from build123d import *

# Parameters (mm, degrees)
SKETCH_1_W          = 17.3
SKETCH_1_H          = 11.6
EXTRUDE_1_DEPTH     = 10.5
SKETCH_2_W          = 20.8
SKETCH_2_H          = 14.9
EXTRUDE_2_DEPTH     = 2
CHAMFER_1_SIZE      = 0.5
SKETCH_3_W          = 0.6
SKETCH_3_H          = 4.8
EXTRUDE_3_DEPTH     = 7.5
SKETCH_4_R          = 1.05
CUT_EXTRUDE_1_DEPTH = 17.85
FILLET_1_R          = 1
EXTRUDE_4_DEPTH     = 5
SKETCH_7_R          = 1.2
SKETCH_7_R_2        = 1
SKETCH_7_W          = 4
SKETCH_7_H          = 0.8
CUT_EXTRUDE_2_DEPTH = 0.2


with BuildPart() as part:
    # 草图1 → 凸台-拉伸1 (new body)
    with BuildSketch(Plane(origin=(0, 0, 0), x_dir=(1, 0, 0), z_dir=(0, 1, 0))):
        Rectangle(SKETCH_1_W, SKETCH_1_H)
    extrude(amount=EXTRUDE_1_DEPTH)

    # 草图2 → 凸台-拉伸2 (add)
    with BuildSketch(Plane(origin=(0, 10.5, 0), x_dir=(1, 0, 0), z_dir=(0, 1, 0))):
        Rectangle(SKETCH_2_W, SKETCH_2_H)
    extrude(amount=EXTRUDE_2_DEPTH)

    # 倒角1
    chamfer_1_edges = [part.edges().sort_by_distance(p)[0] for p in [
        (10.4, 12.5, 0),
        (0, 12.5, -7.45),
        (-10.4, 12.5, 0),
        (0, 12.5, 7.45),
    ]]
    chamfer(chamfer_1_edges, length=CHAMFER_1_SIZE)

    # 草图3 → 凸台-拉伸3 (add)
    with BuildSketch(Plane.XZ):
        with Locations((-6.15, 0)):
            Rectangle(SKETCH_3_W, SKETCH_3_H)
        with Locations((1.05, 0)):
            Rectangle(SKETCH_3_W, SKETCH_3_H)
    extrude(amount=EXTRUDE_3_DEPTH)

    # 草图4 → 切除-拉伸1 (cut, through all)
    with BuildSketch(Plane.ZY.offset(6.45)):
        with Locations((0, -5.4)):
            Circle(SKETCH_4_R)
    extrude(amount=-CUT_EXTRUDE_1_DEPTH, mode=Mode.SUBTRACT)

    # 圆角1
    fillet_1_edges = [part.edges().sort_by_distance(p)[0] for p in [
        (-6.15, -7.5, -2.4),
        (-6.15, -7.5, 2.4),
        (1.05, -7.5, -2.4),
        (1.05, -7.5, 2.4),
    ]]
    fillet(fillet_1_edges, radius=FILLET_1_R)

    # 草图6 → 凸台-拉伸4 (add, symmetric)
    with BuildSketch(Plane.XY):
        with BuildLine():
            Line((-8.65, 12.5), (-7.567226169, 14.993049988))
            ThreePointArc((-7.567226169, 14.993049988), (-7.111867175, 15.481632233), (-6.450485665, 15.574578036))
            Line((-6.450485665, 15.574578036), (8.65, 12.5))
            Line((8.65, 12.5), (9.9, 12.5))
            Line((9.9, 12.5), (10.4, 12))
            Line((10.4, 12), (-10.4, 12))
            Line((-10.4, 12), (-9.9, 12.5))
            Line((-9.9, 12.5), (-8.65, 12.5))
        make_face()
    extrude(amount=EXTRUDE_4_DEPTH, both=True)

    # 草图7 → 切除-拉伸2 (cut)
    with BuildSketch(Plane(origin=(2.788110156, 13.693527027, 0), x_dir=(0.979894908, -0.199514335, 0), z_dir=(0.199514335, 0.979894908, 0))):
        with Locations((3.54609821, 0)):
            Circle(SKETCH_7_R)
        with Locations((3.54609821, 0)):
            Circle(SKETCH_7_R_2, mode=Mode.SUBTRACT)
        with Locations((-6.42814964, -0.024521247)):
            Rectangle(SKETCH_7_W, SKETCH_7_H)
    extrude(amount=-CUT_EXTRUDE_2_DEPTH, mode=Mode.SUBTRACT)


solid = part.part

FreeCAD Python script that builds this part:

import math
import FreeCAD as App
import Part
import Sketcher
from FreeCAD import Vector


def edges_at(feature, points):
    """Names of the edges that pass closest to the given points."""
    edges = feature.Shape.Edges
    near = lambda p: min(range(len(edges)), key=lambda i: edges[i].distToShape(Part.Vertex(*p))[0])
    return sorted({f"Edge{near(p) + 1}" for p in points})

doc = App.newDocument("Part")
body = doc.addObject("PartDesign::Body", "Body")

sketch1 = body.newObject("Sketcher::SketchObject", "Sketch")
sketch1.AttachmentSupport = (doc.getObject("XZ_Plane"), [""])
sketch1.MapMode = "FlatFace"
sketch1.addGeometry(Part.LineSegment(Vector(-8.65, -5.8, 0), Vector(-8.65, 5.8, 0)), False)
sketch1.addGeometry(Part.LineSegment(Vector(-8.65, 5.8, 0), Vector(8.65, 5.8, 0)), False)
sketch1.addGeometry(Part.LineSegment(Vector(8.65, 5.8, 0), Vector(8.65, -5.8, 0)), False)
sketch1.addGeometry(Part.LineSegment(Vector(8.65, -5.8, 0), Vector(-8.65, -5.8, 0)), False)
sketch1.addConstraint(Sketcher.Constraint("Coincident", 0, 2, 1, 1))
sketch1.addConstraint(Sketcher.Constraint("Coincident", 1, 2, 2, 1))
sketch1.addConstraint(Sketcher.Constraint("Coincident", 2, 2, 3, 1))
sketch1.addConstraint(Sketcher.Constraint("Coincident", 3, 2, 0, 1))
sketch1.addConstraint(Sketcher.Constraint("Vertical", 0))
sketch1.addConstraint(Sketcher.Constraint("Horizontal", 1))
sketch1.addConstraint(Sketcher.Constraint("Vertical", 2))
sketch1.addConstraint(Sketcher.Constraint("Horizontal", 3))
sketch1.addConstraint(Sketcher.Constraint("Symmetric", 0, 2, 2, 2, -1, 1))
sketch1.addConstraint(Sketcher.Constraint("DistanceX", 1, 1, 1, 2, 17.3))
sketch1.addConstraint(Sketcher.Constraint("DistanceY", 0, 1, 0, 2, 11.6))
pad1 = body.newObject("PartDesign::Pad", "Pad")
pad1.Profile = sketch1
pad1.Length = 10.5
pad1.Reversed = True

sketch2 = body.newObject("Sketcher::SketchObject", "Sketch001")
sketch2.AttachmentSupport = (doc.getObject("XZ_Plane"), [""])
sketch2.MapMode = "FlatFace"
sketch2.AttachmentOffset = App.Placement(Vector(0, 0, -10.5), App.Rotation())
sketch2.addGeometry(Part.LineSegment(Vector(-10.4, -7.45, 0), Vector(-10.4, 7.45, 0)), False)
sketch2.addGeometry(Part.LineSegment(Vector(-10.4, 7.45, 0), Vector(10.4, 7.45, 0)), False)
sketch2.addGeometry(Part.LineSegment(Vector(10.4, 7.45, 0), Vector(10.4, -7.45, 0)), False)
sketch2.addGeometry(Part.LineSegment(Vector(10.4, -7.45, 0), Vector(-10.4, -7.45, 0)), False)
sketch2.addConstraint(Sketcher.Constraint("Coincident", 0, 2, 1, 1))
sketch2.addConstraint(Sketcher.Constraint("Coincident", 1, 2, 2, 1))
sketch2.addConstraint(Sketcher.Constraint("Coincident", 2, 2, 3, 1))
sketch2.addConstraint(Sketcher.Constraint("Coincident", 3, 2, 0, 1))
sketch2.addConstraint(Sketcher.Constraint("Vertical", 0))
sketch2.addConstraint(Sketcher.Constraint("Horizontal", 1))
sketch2.addConstraint(Sketcher.Constraint("Vertical", 2))
sketch2.addConstraint(Sketcher.Constraint("Horizontal", 3))
sketch2.addConstraint(Sketcher.Constraint("Symmetric", 0, 2, 2, 2, -1, 1))
sketch2.addConstraint(Sketcher.Constraint("DistanceX", 1, 1, 1, 2, 20.8))
sketch2.addConstraint(Sketcher.Constraint("DistanceY", 0, 1, 0, 2, 14.9))
pad2 = body.newObject("PartDesign::Pad", "Pad001")
pad2.Profile = sketch2
pad2.Length = 2
pad2.Reversed = True
doc.recompute()

chamfer = body.newObject("PartDesign::Chamfer", "Chamfer")
chamfer.Base = (pad2, edges_at(pad2, [
    (10.4, 12.5, 0),
    (0, 12.5, -7.45),
    (-10.4, 12.5, 0),
    (0, 12.5, 7.45),
]))
chamfer.Size = 0.5

sketch3 = body.newObject("Sketcher::SketchObject", "Sketch002")
sketch3.AttachmentSupport = (doc.getObject("XZ_Plane"), [""])
sketch3.MapMode = "FlatFace"
sketch3.addGeometry(Part.LineSegment(Vector(-6.45, 2.4, 0), Vector(-6.45, -2.4, 0)), False)
sketch3.addGeometry(Part.LineSegment(Vector(-6.45, -2.4, 0), Vector(-5.85, -2.4, 0)), False)
sketch3.addGeometry(Part.LineSegment(Vector(-5.85, -2.4, 0), Vector(-5.85, 2.4, 0)), False)
sketch3.addGeometry(Part.LineSegment(Vector(-5.85, 2.4, 0), Vector(-6.45, 2.4, 0)), False)
sketch3.addGeometry(Part.LineSegment(Vector(0.75, 2.4, 0), Vector(0.75, -2.4, 0)), False)
sketch3.addGeometry(Part.LineSegment(Vector(0.75, -2.4, 0), Vector(1.35, -2.4, 0)), False)
sketch3.addGeometry(Part.LineSegment(Vector(1.35, -2.4, 0), Vector(1.35, 2.4, 0)), False)
sketch3.addGeometry(Part.LineSegment(Vector(1.35, 2.4, 0), Vector(0.75, 2.4, 0)), False)
sketch3.addConstraint(Sketcher.Constraint("Coincident", 0, 2, 1, 1))
sketch3.addConstraint(Sketcher.Constraint("Coincident", 1, 2, 2, 1))
sketch3.addConstraint(Sketcher.Constraint("Coincident", 2, 2, 3, 1))
sketch3.addConstraint(Sketcher.Constraint("Coincident", 3, 2, 0, 1))
sketch3.addConstraint(Sketcher.Constraint("Coincident", 4, 2, 5, 1))
sketch3.addConstraint(Sketcher.Constraint("Coincident", 5, 2, 6, 1))
sketch3.addConstraint(Sketcher.Constraint("Coincident", 6, 2, 7, 1))
sketch3.addConstraint(Sketcher.Constraint("Coincident", 7, 2, 4, 1))
sketch3.addConstraint(Sketcher.Constraint("Vertical", 0))
sketch3.addConstraint(Sketcher.Constraint("Horizontal", 1))
sketch3.addConstraint(Sketcher.Constraint("Vertical", 2))
sketch3.addConstraint(Sketcher.Constraint("Horizontal", 3))
sketch3.addConstraint(Sketcher.Constraint("Vertical", 4))
sketch3.addConstraint(Sketcher.Constraint("Horizontal", 5))
sketch3.addConstraint(Sketcher.Constraint("Vertical", 6))
sketch3.addConstraint(Sketcher.Constraint("Horizontal", 7))
sketch3.addConstraint(Sketcher.Constraint("Horizontal", 1, 2, 4, 2))
sketch3.addConstraint(Sketcher.Constraint("Horizontal", 3, 2, 6, 2))
sketch3.addConstraint(Sketcher.Constraint("Equal", 3, 5))
sketch3.addConstraint(Sketcher.Constraint("DistanceX", 1, 1, 1, 2, 0.6))
sketch3.addConstraint(Sketcher.Constraint("DistanceY", 0, 2, 0, 1, 4.8))
sketch3.addConstraint(Sketcher.Constraint("DistanceY", 0, 2, -1, 1, 2.4))
sketch3.addConstraint(Sketcher.Constraint("DistanceX", 1, 2, 4, 2, 6.6))
sketch3.addConstraint(Sketcher.Constraint("DistanceX", 0, 2, -1, 1, 6.45))
pad3 = body.newObject("PartDesign::Pad", "Pad002")
pad3.Profile = sketch3
pad3.Length = 7.5

sketch4 = body.newObject("Sketcher::SketchObject", "Sketch003")
sketch4.AttachmentSupport = (doc.getObject("YZ_Plane"), [""])
sketch4.MapMode = "FlatFace"
sketch4.AttachmentOffset = App.Placement(Vector(0, 0, -6.45), App.Rotation())
sketch4.addGeometry(Part.Circle(Vector(-5.4, 0, 0), Vector(0, 0, 1), 1.05), False)
sketch4.addConstraint(Sketcher.Constraint("PointOnObject", 0, 3, -1))
sketch4.addConstraint(Sketcher.Constraint("Diameter", 0, 2.1))
sketch4.addConstraint(Sketcher.Constraint("DistanceX", 0, 3, -1, 1, 5.4))
pocket1 = body.newObject("PartDesign::Pocket", "Pocket")
pocket1.Profile = sketch4
pocket1.Type = "ThroughAll"
pocket1.Reversed = True
doc.recompute()

fillet = body.newObject("PartDesign::Fillet", "Fillet")
fillet.Base = (pocket1, edges_at(pocket1, [
    (-6.15, -7.5, -2.4),
    (-6.15, -7.5, 2.4),
    (1.05, -7.5, -2.4),
    (1.05, -7.5, 2.4),
]))
fillet.Radius = 1

sketch5 = body.newObject("Sketcher::SketchObject", "Sketch004")
sketch5.AttachmentSupport = (doc.getObject("XY_Plane"), [""])
sketch5.MapMode = "FlatFace"
sketch5.addGeometry(Part.LineSegment(Vector(-7.567226, 14.99305, 0), Vector(-8.65, 12.5, 0)), False)
sketch5.addGeometry(Part.LineSegment(Vector(-8.65, 12.5, 0), Vector(-9.9, 12.5, 0)), False)
sketch5.addGeometry(Part.LineSegment(Vector(-9.9, 12.5, 0), Vector(-10.4, 12, 0)), False)
sketch5.addGeometry(Part.LineSegment(Vector(-10.4, 12, 0), Vector(10.4, 12, 0)), False)
sketch5.addGeometry(Part.LineSegment(Vector(10.4, 12, 0), Vector(9.9, 12.5, 0)), False)
sketch5.addGeometry(Part.LineSegment(Vector(9.9, 12.5, 0), Vector(8.65, 12.5, 0)), False)
sketch5.addGeometry(Part.LineSegment(Vector(8.65, 12.5, 0), Vector(-6.450486, 15.574578, 0)), False)
sketch5.addGeometry(Part.ArcOfCircle(Part.Circle(Vector(-6.65, 14.594683, 0), Vector(0, 0, 1), 1), math.radians(78.49144), math.radians(156.523878)), False)
sketch5.addConstraint(Sketcher.Constraint("Coincident", 0, 2, 1, 1))
sketch5.addConstraint(Sketcher.Constraint("Coincident", 1, 2, 2, 1))
sketch5.addConstraint(Sketcher.Constraint("Coincident", 2, 2, 3, 1))
sketch5.addConstraint(Sketcher.Constraint("Coincident", 3, 2, 4, 1))
sketch5.addConstraint(Sketcher.Constraint("Coincident", 4, 2, 5, 1))
sketch5.addConstraint(Sketcher.Constraint("Coincident", 5, 2, 6, 1))
sketch5.addConstraint(Sketcher.Constraint("Tangent", 6, 2, 7, 1))
sketch5.addConstraint(Sketcher.Constraint("Tangent", 7, 2, 0, 1))
sketch5.addConstraint(Sketcher.Constraint("Horizontal", 1))
sketch5.addConstraint(Sketcher.Constraint("Horizontal", 3))
sketch5.addConstraint(Sketcher.Constraint("Horizontal", 5))
sketch5.addConstraint(Sketcher.Constraint("Symmetric", 1, 2, 4, 2, -2))
sketch5.addConstraint(Sketcher.Constraint("Perpendicular", 2, 4))
sketch5.addConstraint(Sketcher.Constraint("Equal", 1, 5))
sketch5.addConstraint(Sketcher.Constraint("Equal", 2, 4))
sketch5.addConstraint(Sketcher.Constraint("Radius", 7, 1.0))
sketch5.addConstraint(Sketcher.Constraint("DistanceX", 3, 1, 3, 2, 20.8))
sketch5.addConstraint(Sketcher.Constraint("DistanceY", -1, 1, 2, 2, 12.0))
sketch5.addConstraint(Sketcher.Constraint("DistanceX", 0, 2, 7, 3, 2.0))
sketch5.addConstraint(Sketcher.Constraint("DistanceX", 1, 2, 1, 1, 1.25))
sketch5.addConstraint(Sketcher.Constraint("DistanceY", -1, 1, 0, 2, 12.5))
sketch5.addConstraint(Sketcher.Constraint("Distance", 0, 2.718032))
pad4 = body.newObject("PartDesign::Pad", "Pad003")
pad4.Profile = sketch5
pad4.Length = 10
pad4.Midplane = True

sketch6 = body.newObject("Sketcher::SketchObject", "Sketch005")
sketch6.Placement = App.Placement(Vector(2.78811, 13.693527, 0), App.Rotation(Vector(0.979894908, -0.199514335, 0), Vector(0, 0, -1.000000001), Vector(0.199514335, 0.979894908, 0), "ZXY"))
sketch6.addGeometry(Part.Circle(Vector(3.546098, 0, 0), Vector(0, 0, 1), 1.2), False)
sketch6.addGeometry(Part.Circle(Vector(3.546098, 0, 0), Vector(0, 0, 1), 1), False)
sketch6.addGeometry(Part.LineSegment(Vector(-8.42815, 0.375479, 0), Vector(-8.42815, -0.424521, 0)), False)
sketch6.addGeometry(Part.LineSegment(Vector(-8.42815, -0.424521, 0), Vector(-4.42815, -0.424521, 0)), False)
sketch6.addGeometry(Part.LineSegment(Vector(-4.42815, -0.424521, 0), Vector(-4.42815, 0.375479, 0)), False)
sketch6.addGeometry(Part.LineSegment(Vector(-4.42815, 0.375479, 0), Vector(-8.42815, 0.375479, 0)), False)
sketch6.addConstraint(Sketcher.Constraint("Coincident", 2, 2, 3, 1))
sketch6.addConstraint(Sketcher.Constraint("Coincident", 3, 2, 4, 1))
sketch6.addConstraint(Sketcher.Constraint("Coincident", 4, 2, 5, 1))
sketch6.addConstraint(Sketcher.Constraint("Coincident", 5, 2, 2, 1))
sketch6.addConstraint(Sketcher.Constraint("Vertical", 2))
sketch6.addConstraint(Sketcher.Constraint("Horizontal", 3))
sketch6.addConstraint(Sketcher.Constraint("Vertical", 4))
sketch6.addConstraint(Sketcher.Constraint("Horizontal", 5))
sketch6.addConstraint(Sketcher.Constraint("Coincident", 1, 3, 0, 3))
sketch6.addConstraint(Sketcher.Constraint("PointOnObject", 0, 3, -1))
sketch6.addConstraint(Sketcher.Constraint("Diameter", 1, 2.0))
sketch6.addConstraint(Sketcher.Constraint("Diameter", 0, 2.4))
sketch6.addConstraint(Sketcher.Constraint("DistanceX", 3, 1, 3, 2, 4.0))
sketch6.addConstraint(Sketcher.Constraint("DistanceY", 2, 2, 2, 1, 0.8))
sketch6.addConstraint(Sketcher.Constraint("DistanceX", -1, 1, 0, 3, 3.546098))
sketch6.addConstraint(Sketcher.Constraint("DistanceX", 2, 2, -1, 1, 8.42815))
sketch6.addConstraint(Sketcher.Constraint("DistanceY", 2, 2, -1, 1, 0.424521))
pocket2 = body.newObject("PartDesign::Pocket", "Pocket001")
pocket2.Profile = sketch6
pocket2.Length = 0.2

doc.recompute()
